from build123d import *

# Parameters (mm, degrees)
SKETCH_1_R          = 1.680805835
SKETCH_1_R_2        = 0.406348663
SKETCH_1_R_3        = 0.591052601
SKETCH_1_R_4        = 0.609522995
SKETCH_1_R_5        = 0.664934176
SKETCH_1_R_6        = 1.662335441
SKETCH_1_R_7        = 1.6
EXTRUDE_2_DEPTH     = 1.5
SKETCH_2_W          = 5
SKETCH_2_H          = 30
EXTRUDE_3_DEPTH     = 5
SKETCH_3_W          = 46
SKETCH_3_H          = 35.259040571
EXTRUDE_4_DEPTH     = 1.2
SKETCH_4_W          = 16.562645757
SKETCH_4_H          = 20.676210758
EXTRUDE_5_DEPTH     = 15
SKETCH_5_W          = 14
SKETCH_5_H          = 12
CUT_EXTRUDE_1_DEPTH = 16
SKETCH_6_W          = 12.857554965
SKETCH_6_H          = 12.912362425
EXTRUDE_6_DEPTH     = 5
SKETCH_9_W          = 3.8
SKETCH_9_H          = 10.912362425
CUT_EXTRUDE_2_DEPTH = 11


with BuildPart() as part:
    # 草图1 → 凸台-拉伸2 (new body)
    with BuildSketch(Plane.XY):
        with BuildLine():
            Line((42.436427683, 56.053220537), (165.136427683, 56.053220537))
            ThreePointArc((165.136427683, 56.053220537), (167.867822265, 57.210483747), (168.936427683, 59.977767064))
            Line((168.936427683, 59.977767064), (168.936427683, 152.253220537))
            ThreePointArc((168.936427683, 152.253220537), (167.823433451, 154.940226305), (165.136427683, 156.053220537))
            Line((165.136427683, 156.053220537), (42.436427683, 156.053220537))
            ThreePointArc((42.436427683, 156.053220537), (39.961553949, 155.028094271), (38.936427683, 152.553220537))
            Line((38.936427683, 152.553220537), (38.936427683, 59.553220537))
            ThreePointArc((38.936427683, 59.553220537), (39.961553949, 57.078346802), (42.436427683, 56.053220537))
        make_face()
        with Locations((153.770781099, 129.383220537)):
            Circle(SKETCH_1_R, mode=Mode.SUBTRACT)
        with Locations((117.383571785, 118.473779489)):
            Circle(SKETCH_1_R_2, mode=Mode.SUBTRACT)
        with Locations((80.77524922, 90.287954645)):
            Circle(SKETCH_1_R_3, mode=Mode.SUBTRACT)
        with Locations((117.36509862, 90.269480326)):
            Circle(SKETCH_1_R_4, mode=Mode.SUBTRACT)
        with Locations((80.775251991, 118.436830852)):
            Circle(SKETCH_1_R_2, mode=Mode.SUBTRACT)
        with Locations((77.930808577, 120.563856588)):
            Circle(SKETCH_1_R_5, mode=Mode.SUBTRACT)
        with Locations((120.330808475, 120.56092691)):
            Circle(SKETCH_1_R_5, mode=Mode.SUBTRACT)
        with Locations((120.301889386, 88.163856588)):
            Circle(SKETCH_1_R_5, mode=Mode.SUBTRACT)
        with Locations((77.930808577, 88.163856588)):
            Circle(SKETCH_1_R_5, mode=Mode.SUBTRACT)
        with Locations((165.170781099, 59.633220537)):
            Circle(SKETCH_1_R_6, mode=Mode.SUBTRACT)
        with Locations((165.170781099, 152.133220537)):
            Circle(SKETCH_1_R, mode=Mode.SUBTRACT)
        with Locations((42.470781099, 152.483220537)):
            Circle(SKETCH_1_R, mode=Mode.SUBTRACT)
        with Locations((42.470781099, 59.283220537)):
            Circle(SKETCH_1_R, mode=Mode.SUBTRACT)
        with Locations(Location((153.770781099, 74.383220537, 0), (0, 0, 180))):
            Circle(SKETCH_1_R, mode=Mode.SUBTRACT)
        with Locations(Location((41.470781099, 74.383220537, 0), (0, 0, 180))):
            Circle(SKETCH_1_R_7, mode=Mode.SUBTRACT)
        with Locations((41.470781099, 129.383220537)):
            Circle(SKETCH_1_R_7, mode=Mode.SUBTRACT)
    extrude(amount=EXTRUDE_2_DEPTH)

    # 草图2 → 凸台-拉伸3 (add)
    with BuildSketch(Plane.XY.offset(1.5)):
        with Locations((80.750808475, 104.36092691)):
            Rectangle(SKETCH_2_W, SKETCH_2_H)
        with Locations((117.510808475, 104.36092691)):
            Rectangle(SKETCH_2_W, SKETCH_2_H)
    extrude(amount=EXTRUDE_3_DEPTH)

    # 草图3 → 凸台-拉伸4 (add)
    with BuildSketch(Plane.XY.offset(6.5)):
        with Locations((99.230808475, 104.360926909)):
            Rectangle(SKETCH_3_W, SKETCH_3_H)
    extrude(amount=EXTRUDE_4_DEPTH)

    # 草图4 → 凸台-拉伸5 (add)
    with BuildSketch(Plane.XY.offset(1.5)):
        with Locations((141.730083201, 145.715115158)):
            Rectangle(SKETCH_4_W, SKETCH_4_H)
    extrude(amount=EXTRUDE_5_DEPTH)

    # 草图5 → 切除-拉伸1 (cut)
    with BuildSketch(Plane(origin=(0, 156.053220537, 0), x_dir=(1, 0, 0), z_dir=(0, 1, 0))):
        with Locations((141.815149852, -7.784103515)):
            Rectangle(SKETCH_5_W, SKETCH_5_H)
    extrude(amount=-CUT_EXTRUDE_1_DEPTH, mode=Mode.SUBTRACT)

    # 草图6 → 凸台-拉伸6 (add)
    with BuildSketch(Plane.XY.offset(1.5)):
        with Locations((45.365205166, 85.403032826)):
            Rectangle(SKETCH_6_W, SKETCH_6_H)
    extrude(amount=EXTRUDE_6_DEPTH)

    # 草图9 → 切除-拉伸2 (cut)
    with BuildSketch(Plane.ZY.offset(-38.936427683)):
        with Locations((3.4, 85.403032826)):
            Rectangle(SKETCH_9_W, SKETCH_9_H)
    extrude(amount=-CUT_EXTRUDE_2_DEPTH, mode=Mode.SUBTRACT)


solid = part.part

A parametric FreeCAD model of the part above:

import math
import FreeCAD as App
import Part
import Sketcher
from FreeCAD import Vector
Q = App.Units.Quantity

doc = App.newDocument("Part")
body = doc.addObject("PartDesign::Body", "Body")

sketch1 = body.newObject("Sketcher::SketchObject", "Sketch")
sketch1.AttachmentSupport = (doc.getObject("XY_Plane"), [""])
sketch1.MapMode = "FlatFace"
sketch1.addGeometry(Part.LineSegment(Vector(42.44, 56.05, 0), Vector(165.14, 56.05, 0)), False)
sketch1.addGeometry(Part.ArcOfCircle(Part.Circle(Vector(165.14, 59.86, 0), Vector(0, 0, 1), 3.8), math.radians(-90), math.radians(2)), False)
sketch1.addGeometry(Part.LineSegment(Vector(168.94, 59.98, 0), Vector(168.94, 152.25, 0)), False)
sketch1.addGeometry(Part.ArcOfCircle(Part.Circle(Vector(165.14, 152.25, 0), Vector(0, 0, 1), 3.8), math.radians(0), math.radians(90)), False)
sketch1.addGeometry(Part.LineSegment(Vector(165.14, 156.05, 0), Vector(42.44, 156.05, 0)), False)
sketch1.addGeometry(Part.ArcOfCircle(Part.Circle(Vector(42.44, 152.55, 0), Vector(0, 0, 1), 3.5), math.radians(90), math.radians(180)), False)
sketch1.addGeometry(Part.LineSegment(Vector(38.94, 152.55, 0), Vector(38.94, 59.55, 0)), False)
sketch1.addGeometry(Part.ArcOfCircle(Part.Circle(Vector(42.44, 59.55, 0), Vector(0, 0, 1), 3.5), math.radians(180), math.radians(270)), False)
sketch1.addGeometry(Part.Circle(Vector(42.47, 59.28, 0), Vector(0, 0, 1), 1.68), False)
sketch1.addGeometry(Part.Circle(Vector(41.47, 74.38, 0), Vector(0, 0, 1), 1.6), False)
sketch1.addGeometry(Part.Circle(Vector(77.93, 88.16, 0), Vector(0, 0, 1), 0.66), False)
sketch1.addGeometry(Part.Circle(Vector(80.78, 90.29, 0), Vector(0, 0, 1), 0.59), False)
sketch1.addGeometry(Part.Circle(Vector(165.17, 59.63, 0), Vector(0, 0, 1), 1.66), False)
sketch1.addGeometry(Part.Circle(Vector(153.77, 74.38, 0), Vector(0, 0, 1), 1.68), False)
sketch1.addGeometry(Part.Circle(Vector(117.37, 90.27, 0), Vector(0, 0, 1), 0.61), False)
sketch1.addGeometry(Part.Circle(Vector(120.3, 88.16, 0), Vector(0, 0, 1), 0.66), False)
sketch1.addGeometry(Part.Circle(Vector(41.47, 129.38, 0), Vector(0, 0, 1), 1.6), False)
sketch1.addGeometry(Part.Circle(Vector(77.93, 120.56, 0), Vector(0, 0, 1), 0.66), False)
sketch1.addGeometry(Part.Circle(Vector(80.78, 118.44, 0), Vector(0, 0, 1), 0.41), False)
sketch1.addGeometry(Part.Circle(Vector(42.47, 152.48, 0), Vector(0, 0, 1), 1.68), False)
sketch1.addGeometry(Part.Circle(Vector(117.38, 118.47, 0), Vector(0, 0, 1), 0.41), False)
sketch1.addGeometry(Part.Circle(Vector(120.33, 120.56, 0), Vector(0, 0, 1), 0.66), False)
sketch1.addGeometry(Part.Circle(Vector(153.77, 129.38, 0), Vector(0, 0, 1), 1.68), False)
sketch1.addGeometry(Part.Circle(Vector(165.17, 152.13, 0), Vector(0, 0, 1), 1.68), False)
sketch1.addConstraint(Sketcher.Constraint("Tangent", 0, 2, 1, 1))
sketch1.addConstraint(Sketcher.Constraint("Coincident", 1, 2, 2, 1))
sketch1.addConstraint(Sketcher.Constraint("Tangent", 2, 2, 3, 1))
sketch1.addConstraint(Sketcher.Constraint("Tangent", 3, 2, 4, 1))
sketch1.addConstraint(Sketcher.Constraint("Tangent", 4, 2, 5, 1))
sketch1.addConstraint(Sketcher.Constraint("Tangent", 5, 2, 6, 1))
sketch1.addConstraint(Sketcher.Constraint("Tangent", 6, 2, 7, 1))
sketch1.addConstraint(Sketcher.Constraint("Tangent", 7, 2, 0, 1))
sketch1.addConstraint(Sketcher.Constraint("Horizontal", 0))
sketch1.addConstraint(Sketcher.Constraint("Vertical", 2))
sketch1.addConstraint(Sketcher.Constraint("Horizontal", 4))
sketch1.addConstraint(Sketcher.Constraint("Vertical", 6))
sketch1.addConstraint(Sketcher.Constraint("Equal", 5, 7))
sketch1.addConstraint(Sketcher.Constraint("Equal", 8, 13))
sketch1.addConstraint(Sketcher.Constraint("Equal", 10, 15))
sketch1.addConstraint(Sketcher.Constraint("Equal", 9, 16))
sketch1.addConstraint(Sketcher.Constraint("Equal", 15, 17))
sketch1.addConstraint(Sketcher.Constraint("Equal", 13, 19))
sketch1.addConstraint(Sketcher.Constraint("Equal", 18, 20))
sketch1.addConstraint(Sketcher.Constraint("Equal", 17, 21))
sketch1.addConstraint(Sketcher.Constraint("Equal", 19, 22))
sketch1.addConstraint(Sketcher.Constraint("Equal", 22, 23))
sketch1.addConstraint(Sketcher.Constraint("Horizontal", 9, 3, 13, 3))
sketch1.addConstraint(Sketcher.Constraint("Horizontal", 10, 3, 15, 3))
sketch1.addConstraint(Sketcher.Constraint("Horizontal", 16, 3, 22, 3))
sketch1.addConstraint(Sketcher.Constraint("Vertical", 1, 3, 3, 3))
sketch1.addConstraint(Sketcher.Constraint("Vertical", 9, 3, 16, 3))
sketch1.addConstraint(Sketcher.Constraint("Vertical", 10, 3, 17, 3))
sketch1.addConstraint(Sketcher.Constraint("Vertical", 8, 3, 19, 3))
sketch1.addConstraint(Sketcher.Constraint("Vertical", 13, 3, 22, 3))
sketch1.addConstraint(Sketcher.Constraint("Vertical", 12, 3, 23, 3))
sketch1.addConstraint(Sketcher.Constraint("Diameter", 9, Q("3.2 mm")))
sketch1.addConstraint(Sketcher.Constraint("Radius", 3, Q("3.8 mm")))
sketch1.addConstraint(Sketcher.Constraint("Radius", 5, Q("3.5 mm")))
sketch1.addConstraint(Sketcher.Constraint("DistanceY", 6, 2, 6, 1, Q("93 mm")))
sketch1.addConstraint(Sketcher.Constraint("DistanceX", 0, 1, 0, 2, Q("122.7 mm")))
sketch1.addConstraint(Sketcher.Constraint("DistanceX", 9, 3, 8, 3, Q("1 mm")))
sketch1.addConstraint(Sketcher.Constraint("DistanceY", 9, 3, 16, 3, Q("55 mm")))
sketch1.addConstraint(Sketcher.Constraint("DistanceY", 8, 3, 9, 3, Q("15.1 mm")))
sketch1.addConstraint(Sketcher.Constraint("DistanceX", 8, 3, 12, 3, Q("122.7 mm")))
sketch1.addConstraint(Sketcher.Constraint("DistanceX", 13, 3, 12, 3, Q("11.4 mm")))
sketch1.addConstraint(Sketcher.Constraint("DistanceY", 10, 3, 17, 3, Q("32.4 mm")))
sketch1.addConstraint(Sketcher.Constraint("DistanceY", 16, 3, 19, 3, Q("23.1 mm")))
sketch1.addConstraint(Sketcher.Constraint("DistanceX", 17, 3, 21, 3, Q("42.4 mm")))
sketch1.addConstraint(Sketcher.Constraint("Diameter", 8, Q("3.361612 mm")))
sketch1.addConstraint(Sketcher.Constraint("Diameter", 10, Q("1.329868 mm")))
sketch1.addConstraint(Sketcher.Constraint("Diameter", 12, Q("3.324671 mm")))
sketch1.addConstraint(Sketcher.Constraint("DistanceY", 8, 3, 7, 3, Q("0.27 mm")))
sketch1.addConstraint(Sketcher.Constraint("DistanceY", 12, 3, 3, 3, Q("92.62 mm")))
sketch1.addConstraint(Sketcher.Constraint("DistanceY", 23, 3, 3, 3, Q("0.12 mm")))
sketch1.addConstraint(Sketcher.Constraint("Diameter", 11, Q("1.182105 mm")))
sketch1.addConstraint(Sketcher.Constraint("Diameter", 14, Q("1.219046 mm")))
sketch1.addConstraint(Sketcher.Constraint("Diameter", 18, Q("0.812697 mm")))
sketch1.addConstraint(Sketcher.Constraint("Radius", 1, Q("3.801976 mm")))
sketch1.addConstraint(Sketcher.Constraint("DistanceX", -1, 1, 14, 3, Q("117.365099 mm")))
sketch1.addConstraint(Sketcher.Constraint("DistanceY", 10, 3, 11, 3, Q("2.124098 mm")))
sketch1.addConstraint(Sketcher.Constraint("DistanceY", 14, 3, 20, 3, Q("28.204299 mm")))
sketch1.addConstraint(Sketcher.Constraint("DistanceY", -1, 1, 3, 3, Q("152.253221 mm")))
sketch1.addConstraint(Sketcher.Constraint("DistanceX", -1, 1, 8, 3, Q("42.470781 mm")))
sketch1.addConstraint(Sketcher.Constraint("DistanceX", -1, 1, 10, 3, Q("77.930809 mm")))
sketch1.addConstraint(Sketcher.Constraint("DistanceX", -1, 1, 11, 3, Q("80.775249 mm")))
sketch1.addConstraint(Sketcher.Constraint("DistanceY", -1, 1, 14, 3, Q("90.26948 mm")))
sketch1.addConstraint(Sketcher.Constraint("DistanceX", -1, 1, 15, 3, Q("120.301889 mm")))
sketch1.addConstraint(Sketcher.Constraint("DistanceX", -1, 1, 18, 3, Q("80.775252 mm")))
sketch1.addConstraint(Sketcher.Constraint("DistanceY", -1, 1, 18, 3, Q("118.436831 mm")))
sketch1.addConstraint(Sketcher.Constraint("DistanceX", -1, 1, 20, 3, Q("117.383572 mm")))
sketch1.addConstraint(Sketcher.Constraint("DistanceX", 7, 3, 10, 3, Q("35.494381 mm")))
sketch1.addConstraint(Sketcher.Constraint("DistanceY", 1, 3, 10, 3, Q("28.30866 mm")))
sketch1.addConstraint(Sketcher.Constraint("DistanceY", 15, 3, 21, 3, Q("32.39707 mm")))
pad1 = body.newObject("PartDesign::Pad", "Pad")
pad1.Profile = sketch1
pad1.Length = 1.5

sketch2 = body.newObject("Sketcher::SketchObject", "Sketch001")
sketch2.AttachmentSupport = (doc.getObject("XY_Plane"), [""])
sketch2.MapMode = "FlatFace"
sketch2.AttachmentOffset = App.Placement(Vector(0, 0, 1.5), App.Rotation())
sketch2.addGeometry(Part.LineSegment(Vector(78, 119, 0), Vector(78, 89, 0)), False)
sketch2.addGeometry(Part.LineSegment(Vector(78, 89, 0), Vector(83, 89, 0)), False)
sketch2.addGeometry(Part.LineSegment(Vector(83, 89, 0), Vector(83, 119, 0)), False)
sketch2.addGeometry(Part.LineSegment(Vector(83, 119, 0), Vector(78, 119, 0)), False)
sketch2.addGeometry(Part.LineSegment(Vector(115, 119, 0), Vector(115, 89, 0)), False)
sketch2.addGeometry(Part.LineSegment(Vector(115, 89, 0), Vector(120, 89, 0)), False)
sketch2.addGeometry(Part.LineSegment(Vector(120, 89, 0), Vector(120, 119, 0)), False)
sketch2.addGeometry(Part.LineSegment(Vector(120, 119, 0), Vector(115, 119, 0)), False)
sketch2.addConstraint(Sketcher.Constraint("Coincident", 0, 2, 1, 1))
sketch2.addConstraint(Sketcher.Constraint("Coincident", 1, 2, 2, 1))
sketch2.addConstraint(Sketcher.Constraint("Coincident", 2, 2, 3, 1))
sketch2.addConstraint(Sketcher.Constraint("Coincident", 3, 2, 0, 1))
sketch2.addConstraint(Sketcher.Constraint("Coincident", 4, 2, 5, 1))
sketch2.addConstraint(Sketcher.Constraint("Coincident", 5, 2, 6, 1))
sketch2.addConstraint(Sketcher.Constraint("Coincident", 6, 2, 7, 1))
sketch2.addConstraint(Sketcher.Constraint("Coincident", 7, 2, 4, 1))
sketch2.addConstraint(Sketcher.Constraint("Vertical", 0))
sketch2.addConstraint(Sketcher.Constraint("Horizontal", 1))
sketch2.addConstraint(Sketcher.Constraint("Vertical", 2))
sketch2.addConstraint(Sketcher.Constraint("Horizontal", 3))
sketch2.addConstraint(Sketcher.Constraint("Vertical", 4))
sketch2.addConstraint(Sketcher.Constraint("Horizontal", 5))
sketch2.addConstraint(Sketcher.Constraint("Vertical", 6))
sketch2.addConstraint(Sketcher.Constraint("Horizontal", 7))
sketch2.addConstraint(Sketcher.Constraint("Horizontal", 1, 2, 4, 2))
sketch2.addConstraint(Sketcher.Constraint("Horizontal", 3, 2, 6, 2))
sketch2.addConstraint(Sketcher.Constraint("Equal", 3, 5))
sketch2.addConstraint(Sketcher.Constraint("DistanceX", 1, 1, 1, 2, Q("5 mm")))
sketch2.addConstraint(Sketcher.Constraint("DistanceY", 0, 2, 0, 1, Q("30 mm")))
sketch2.addConstraint(Sketcher.Constraint("DistanceX", 1, 2, 4, 2, Q("31.76 mm")))
sketch2.addConstraint(Sketcher.Constraint("DistanceX", -1, 1, 0, 2, Q("78.250808 mm")))
sketch2.addConstraint(Sketcher.Constraint("DistanceY", -1, 1, 0, 2, Q("89.360927 mm")))
pad2 = body.newObject("PartDesign::Pad", "Pad001")
pad2.Profile = sketch2
pad2.Length = 5

sketch3 = body.newObject("Sketcher::SketchObject", "Sketch002")
sketch3.AttachmentSupport = (doc.getObject("XY_Plane"), [""])
sketch3.MapMode = "FlatFace"
sketch3.AttachmentOffset = App.Placement(Vector(0, 0, 6.5), App.Rotation())
sketch3.addGeometry(Part.LineSegment(Vector(76, 122, 0), Vector(76, 87, 0)), False)
sketch3.addGeometry(Part.LineSegment(Vector(76, 87, 0), Vector(122, 87, 0)), False)
sketch3.addGeometry(Part.LineSegment(Vector(122, 87, 0), Vector(122, 122, 0)), False)
sketch3.addGeometry(Part.LineSegment(Vector(122, 122, 0), Vector(76, 122, 0)), False)
sketch3.addConstraint(Sketcher.Constraint("Coincident", 0, 2, 1, 1))
sketch3.addConstraint(Sketcher.Constraint("Coincident", 1, 2, 2, 1))
sketch3.addConstraint(Sketcher.Constraint("Coincident", 2, 2, 3, 1))
sketch3.addConstraint(Sketcher.Constraint("Coincident", 3, 2, 0, 1))
sketch3.addConstraint(Sketcher.Constraint("Vertical", 0))
sketch3.addConstraint(Sketcher.Constraint("Horizontal", 1))
sketch3.addConstraint(Sketcher.Constraint("Vertical", 2))
sketch3.addConstraint(Sketcher.Constraint("Horizontal", 3))
sketch3.addConstraint(Sketcher.Constraint("DistanceX", 1, 1, 1, 2, Q("46 mm")))
sketch3.addConstraint(Sketcher.Constraint("DistanceY", 0, 2, 0, 1, Q("35.259041 mm")))
sketch3.addConstraint(Sketcher.Constraint("DistanceX", -1, 1, 0, 2, Q("76.230808 mm")))
sketch3.addConstraint(Sketcher.Constraint("DistanceY", -1, 1, 0, 2, Q("86.731407 mm")))
pad3 = body.newObject("PartDesign::Pad", "Pad002")
pad3.Profile = sketch3
pad3.Length = 1.2

sketch4 = body.newObject("Sketcher::SketchObject", "Sketch003")
sketch4.AttachmentSupport = (doc.getObject("XY_Plane"), [""])
sketch4.MapMode = "FlatFace"
sketch4.AttachmentOffset = App.Placement(Vector(0, 0, 1.5), App.Rotation())
sketch4.addGeometry(Part.LineSegment(Vector(133, 156, 0), Vector(133, 135, 0)), False)
sketch4.addGeometry(Part.LineSegment(Vector(133, 135, 0), Vector(150, 135, 0)), False)
sketch4.addGeometry(Part.LineSegment(Vector(150, 135, 0), Vector(150, 156, 0)), False)
sketch4.addGeometry(Part.LineSegment(Vector(150, 156, 0), Vector(133, 156, 0)), False)
sketch4.addConstraint(Sketcher.Constraint("Coincident", 0, 2, 1, 1))
sketch4.addConstraint(Sketcher.Constraint("Coincident", 1, 2, 2, 1))
sketch4.addConstraint(Sketcher.Constraint("Coincident", 2, 2, 3, 1))
sketch4.addConstraint(Sketcher.Constraint("Coincident", 3, 2, 0, 1))
sketch4.addConstraint(Sketcher.Constraint("Vertical", 0))
sketch4.addConstraint(Sketcher.Constraint("Horizontal", 1))
sketch4.addConstraint(Sketcher.Constraint("Vertical", 2))
sketch4.addConstraint(Sketcher.Constraint("Horizontal", 3))
sketch4.addConstraint(Sketcher.Constraint("DistanceY", 0, 2, 0, 1, Q("20.676211 mm")))
sketch4.addConstraint(Sketcher.Constraint("DistanceX", 1, 1, 1, 2, Q("16.562646 mm")))
sketch4.addConstraint(Sketcher.Constraint("DistanceX", -1, 1, 0, 2, Q("133.44876 mm")))
sketch4.addConstraint(Sketcher.Constraint("DistanceY", -1, 1, 0, 2, Q("135.37701 mm")))
pad4 = body.newObject("PartDesign::Pad", "Pad003")
pad4.Profile = sketch4
pad4.Length = 15

sketch5 = body.newObject("Sketcher::SketchObject", "Sketch004")
sketch5.AttachmentSupport = (doc.getObject("XZ_Plane"), [""])
sketch5.MapMode = "FlatFace"
sketch5.AttachmentOffset = App.Placement(Vector(0, 0, -156.053221), App.Rotation())
sketch5.addGeometry(Part.LineSegment(Vector(135, 2, 0), Vector(135, 14, 0)), False)
sketch5.addGeometry(Part.LineSegment(Vector(135, 14, 0), Vector(149, 14, 0)), False)
sketch5.addGeometry(Part.LineSegment(Vector(149, 14, 0), Vector(149, 2, 0)), False)
sketch5.addGeometry(Part.LineSegment(Vector(149, 2, 0), Vector(135, 2, 0)), False)
sketch5.addConstraint(Sketcher.Constraint("Coincident", 0, 2, 1, 1))
sketch5.addConstraint(Sketcher.Constraint("Coincident", 1, 2, 2, 1))
sketch5.addConstraint(Sketcher.Constraint("Coincident", 2, 2, 3, 1))
sketch5.addConstraint(Sketcher.Constraint("Coincident", 3, 2, 0, 1))
sketch5.addConstraint(Sketcher.Constraint("Vertical", 0))
sketch5.addConstraint(Sketcher.Constraint("Horizontal", 1))
sketch5.addConstraint(Sketcher.Constraint("Vertical", 2))
sketch5.addConstraint(Sketcher.Constraint("Horizontal", 3))
sketch5.addConstraint(Sketcher.Constraint("DistanceX", 1, 1, 1, 2, Q("14 mm")))
sketch5.addConstraint(Sketcher.Constraint("DistanceY", 0, 1, 0, 2, Q("12 mm")))
sketch5.addConstraint(Sketcher.Constraint("DistanceX", -1, 1, 0, 2, Q("134.81515 mm")))
sketch5.addConstraint(Sketcher.Constraint("DistanceY", -1, 1, 0, 2, Q("13.784104 mm")))
pocket1 = body.newObject("PartDesign::Pocket", "Pocket")
pocket1.Profile = sketch5
pocket1.Length = 16
pocket1.Reversed = True

sketch6 = body.newObject("Sketcher::SketchObject", "Sketch005")
sketch6.AttachmentSupport = (doc.getObject("XY_Plane"), [""])
sketch6.MapMode = "FlatFace"
sketch6.AttachmentOffset = App.Placement(Vector(0, 0, 1.5), App.Rotation())
sketch6.addGeometry(Part.LineSegment(Vector(39, 92, 0), Vector(39, 79, 0)), False)
sketch6.addGeometry(Part.LineSegment(Vector(39, 79, 0), Vector(52, 79, 0)), False)
sketch6.addGeometry(Part.LineSegment(Vector(52, 79, 0), Vector(52, 92, 0)), False)
sketch6.addGeometry(Part.LineSegment(Vector(52, 92, 0), Vector(39, 92, 0)), False)
sketch6.addConstraint(Sketcher.Constraint("Coincident", 0, 2, 1, 1))
sketch6.addConstraint(Sketcher.Constraint("Coincident", 1, 2, 2, 1))
sketch6.addConstraint(Sketcher.Constraint("Coincident", 2, 2, 3, 1))
sketch6.addConstraint(Sketcher.Constraint("Coincident", 3, 2, 0, 1))
sketch6.addConstraint(Sketcher.Constraint("Vertical", 0))
sketch6.addConstraint(Sketcher.Constraint("Horizontal", 1))
sketch6.addConstraint(Sketcher.Constraint("Vertical", 2))
sketch6.addConstraint(Sketcher.Constraint("Horizontal", 3))
sketch6.addConstraint(Sketcher.Constraint("DistanceX", 1, 1, 1, 2, Q("12.857555 mm")))
sketch6.addConstraint(Sketcher.Constraint("DistanceY", 0, 2, 0, 1, Q("12.912362 mm")))
sketch6.addConstraint(Sketcher.Constraint("DistanceY", -1, 1, 0, 2, Q("78.946852 mm")))
sketch6.addConstraint(Sketcher.Constraint("DistanceX", -1, 1, 0, 2, Q("38.936428 mm")))
pad5 = body.newObject("PartDesign::Pad", "Pad004")
pad5.Profile = sketch6
pad5.Length = 5

sketch7 = body.newObject("Sketcher::SketchObject", "Sketch006")
sketch7.AttachmentSupport = (doc.getObject("YZ_Plane"), [""])
sketch7.MapMode = "FlatFace"
sketch7.AttachmentOffset = App.Placement(Vector(0, 0, 38.936428), App.Rotation())
sketch7.addGeometry(Part.LineSegment(Vector(90.9, 1.5, 0), Vector(79.9, 1.5, 0)), False)
sketch7.addGeometry(Part.LineSegment(Vector(79.9, 1.5, 0), Vector(79.9, 5.3, 0)), False)
sketch7.addGeometry(Part.LineSegment(Vector(79.9, 5.3, 0), Vector(90.9, 5.3, 0)), False)
sketch7.addGeometry(Part.LineSegment(Vector(90.9, 5.3, 0), Vector(90.9, 1.5, 0)), False)
sketch7.addConstraint(Sketcher.Constraint("Coincident", 0, 2, 1, 1))
sketch7.addConstraint(Sketcher.Constraint("Coincident", 1, 2, 2, 1))
sketch7.addConstraint(Sketcher.Constraint("Coincident", 2, 2, 3, 1))
sketch7.addConstraint(Sketcher.Constraint("Coincident", 3, 2, 0, 1))
sketch7.addConstraint(Sketcher.Constraint("Horizontal", 0))
sketch7.addConstraint(Sketcher.Constraint("Vertical", 1))
sketch7.addConstraint(Sketcher.Constraint("Horizontal", 2))
sketch7.addConstraint(Sketcher.Constraint("Vertical", 3))
sketch7.addConstraint(Sketcher.Constraint("DistanceY", 1, 1, 1, 2, Q("3.8 mm")))
sketch7.addConstraint(Sketcher.Constraint("DistanceY", -1, 1, 0, 2, Q("1.5 mm")))
sketch7.addConstraint(Sketcher.Constraint("DistanceX", 0, 2, 0, 1, Q("10.912362 mm")))
sketch7.addConstraint(Sketcher.Constraint("DistanceX", -1, 1, 0, 2, Q("79.946852 mm")))
pocket2 = body.newObject("PartDesign::Pocket", "Pocket001")
pocket2.Profile = sketch7
pocket2.Length = 11
pocket2.Reversed = True

doc.recompute()
